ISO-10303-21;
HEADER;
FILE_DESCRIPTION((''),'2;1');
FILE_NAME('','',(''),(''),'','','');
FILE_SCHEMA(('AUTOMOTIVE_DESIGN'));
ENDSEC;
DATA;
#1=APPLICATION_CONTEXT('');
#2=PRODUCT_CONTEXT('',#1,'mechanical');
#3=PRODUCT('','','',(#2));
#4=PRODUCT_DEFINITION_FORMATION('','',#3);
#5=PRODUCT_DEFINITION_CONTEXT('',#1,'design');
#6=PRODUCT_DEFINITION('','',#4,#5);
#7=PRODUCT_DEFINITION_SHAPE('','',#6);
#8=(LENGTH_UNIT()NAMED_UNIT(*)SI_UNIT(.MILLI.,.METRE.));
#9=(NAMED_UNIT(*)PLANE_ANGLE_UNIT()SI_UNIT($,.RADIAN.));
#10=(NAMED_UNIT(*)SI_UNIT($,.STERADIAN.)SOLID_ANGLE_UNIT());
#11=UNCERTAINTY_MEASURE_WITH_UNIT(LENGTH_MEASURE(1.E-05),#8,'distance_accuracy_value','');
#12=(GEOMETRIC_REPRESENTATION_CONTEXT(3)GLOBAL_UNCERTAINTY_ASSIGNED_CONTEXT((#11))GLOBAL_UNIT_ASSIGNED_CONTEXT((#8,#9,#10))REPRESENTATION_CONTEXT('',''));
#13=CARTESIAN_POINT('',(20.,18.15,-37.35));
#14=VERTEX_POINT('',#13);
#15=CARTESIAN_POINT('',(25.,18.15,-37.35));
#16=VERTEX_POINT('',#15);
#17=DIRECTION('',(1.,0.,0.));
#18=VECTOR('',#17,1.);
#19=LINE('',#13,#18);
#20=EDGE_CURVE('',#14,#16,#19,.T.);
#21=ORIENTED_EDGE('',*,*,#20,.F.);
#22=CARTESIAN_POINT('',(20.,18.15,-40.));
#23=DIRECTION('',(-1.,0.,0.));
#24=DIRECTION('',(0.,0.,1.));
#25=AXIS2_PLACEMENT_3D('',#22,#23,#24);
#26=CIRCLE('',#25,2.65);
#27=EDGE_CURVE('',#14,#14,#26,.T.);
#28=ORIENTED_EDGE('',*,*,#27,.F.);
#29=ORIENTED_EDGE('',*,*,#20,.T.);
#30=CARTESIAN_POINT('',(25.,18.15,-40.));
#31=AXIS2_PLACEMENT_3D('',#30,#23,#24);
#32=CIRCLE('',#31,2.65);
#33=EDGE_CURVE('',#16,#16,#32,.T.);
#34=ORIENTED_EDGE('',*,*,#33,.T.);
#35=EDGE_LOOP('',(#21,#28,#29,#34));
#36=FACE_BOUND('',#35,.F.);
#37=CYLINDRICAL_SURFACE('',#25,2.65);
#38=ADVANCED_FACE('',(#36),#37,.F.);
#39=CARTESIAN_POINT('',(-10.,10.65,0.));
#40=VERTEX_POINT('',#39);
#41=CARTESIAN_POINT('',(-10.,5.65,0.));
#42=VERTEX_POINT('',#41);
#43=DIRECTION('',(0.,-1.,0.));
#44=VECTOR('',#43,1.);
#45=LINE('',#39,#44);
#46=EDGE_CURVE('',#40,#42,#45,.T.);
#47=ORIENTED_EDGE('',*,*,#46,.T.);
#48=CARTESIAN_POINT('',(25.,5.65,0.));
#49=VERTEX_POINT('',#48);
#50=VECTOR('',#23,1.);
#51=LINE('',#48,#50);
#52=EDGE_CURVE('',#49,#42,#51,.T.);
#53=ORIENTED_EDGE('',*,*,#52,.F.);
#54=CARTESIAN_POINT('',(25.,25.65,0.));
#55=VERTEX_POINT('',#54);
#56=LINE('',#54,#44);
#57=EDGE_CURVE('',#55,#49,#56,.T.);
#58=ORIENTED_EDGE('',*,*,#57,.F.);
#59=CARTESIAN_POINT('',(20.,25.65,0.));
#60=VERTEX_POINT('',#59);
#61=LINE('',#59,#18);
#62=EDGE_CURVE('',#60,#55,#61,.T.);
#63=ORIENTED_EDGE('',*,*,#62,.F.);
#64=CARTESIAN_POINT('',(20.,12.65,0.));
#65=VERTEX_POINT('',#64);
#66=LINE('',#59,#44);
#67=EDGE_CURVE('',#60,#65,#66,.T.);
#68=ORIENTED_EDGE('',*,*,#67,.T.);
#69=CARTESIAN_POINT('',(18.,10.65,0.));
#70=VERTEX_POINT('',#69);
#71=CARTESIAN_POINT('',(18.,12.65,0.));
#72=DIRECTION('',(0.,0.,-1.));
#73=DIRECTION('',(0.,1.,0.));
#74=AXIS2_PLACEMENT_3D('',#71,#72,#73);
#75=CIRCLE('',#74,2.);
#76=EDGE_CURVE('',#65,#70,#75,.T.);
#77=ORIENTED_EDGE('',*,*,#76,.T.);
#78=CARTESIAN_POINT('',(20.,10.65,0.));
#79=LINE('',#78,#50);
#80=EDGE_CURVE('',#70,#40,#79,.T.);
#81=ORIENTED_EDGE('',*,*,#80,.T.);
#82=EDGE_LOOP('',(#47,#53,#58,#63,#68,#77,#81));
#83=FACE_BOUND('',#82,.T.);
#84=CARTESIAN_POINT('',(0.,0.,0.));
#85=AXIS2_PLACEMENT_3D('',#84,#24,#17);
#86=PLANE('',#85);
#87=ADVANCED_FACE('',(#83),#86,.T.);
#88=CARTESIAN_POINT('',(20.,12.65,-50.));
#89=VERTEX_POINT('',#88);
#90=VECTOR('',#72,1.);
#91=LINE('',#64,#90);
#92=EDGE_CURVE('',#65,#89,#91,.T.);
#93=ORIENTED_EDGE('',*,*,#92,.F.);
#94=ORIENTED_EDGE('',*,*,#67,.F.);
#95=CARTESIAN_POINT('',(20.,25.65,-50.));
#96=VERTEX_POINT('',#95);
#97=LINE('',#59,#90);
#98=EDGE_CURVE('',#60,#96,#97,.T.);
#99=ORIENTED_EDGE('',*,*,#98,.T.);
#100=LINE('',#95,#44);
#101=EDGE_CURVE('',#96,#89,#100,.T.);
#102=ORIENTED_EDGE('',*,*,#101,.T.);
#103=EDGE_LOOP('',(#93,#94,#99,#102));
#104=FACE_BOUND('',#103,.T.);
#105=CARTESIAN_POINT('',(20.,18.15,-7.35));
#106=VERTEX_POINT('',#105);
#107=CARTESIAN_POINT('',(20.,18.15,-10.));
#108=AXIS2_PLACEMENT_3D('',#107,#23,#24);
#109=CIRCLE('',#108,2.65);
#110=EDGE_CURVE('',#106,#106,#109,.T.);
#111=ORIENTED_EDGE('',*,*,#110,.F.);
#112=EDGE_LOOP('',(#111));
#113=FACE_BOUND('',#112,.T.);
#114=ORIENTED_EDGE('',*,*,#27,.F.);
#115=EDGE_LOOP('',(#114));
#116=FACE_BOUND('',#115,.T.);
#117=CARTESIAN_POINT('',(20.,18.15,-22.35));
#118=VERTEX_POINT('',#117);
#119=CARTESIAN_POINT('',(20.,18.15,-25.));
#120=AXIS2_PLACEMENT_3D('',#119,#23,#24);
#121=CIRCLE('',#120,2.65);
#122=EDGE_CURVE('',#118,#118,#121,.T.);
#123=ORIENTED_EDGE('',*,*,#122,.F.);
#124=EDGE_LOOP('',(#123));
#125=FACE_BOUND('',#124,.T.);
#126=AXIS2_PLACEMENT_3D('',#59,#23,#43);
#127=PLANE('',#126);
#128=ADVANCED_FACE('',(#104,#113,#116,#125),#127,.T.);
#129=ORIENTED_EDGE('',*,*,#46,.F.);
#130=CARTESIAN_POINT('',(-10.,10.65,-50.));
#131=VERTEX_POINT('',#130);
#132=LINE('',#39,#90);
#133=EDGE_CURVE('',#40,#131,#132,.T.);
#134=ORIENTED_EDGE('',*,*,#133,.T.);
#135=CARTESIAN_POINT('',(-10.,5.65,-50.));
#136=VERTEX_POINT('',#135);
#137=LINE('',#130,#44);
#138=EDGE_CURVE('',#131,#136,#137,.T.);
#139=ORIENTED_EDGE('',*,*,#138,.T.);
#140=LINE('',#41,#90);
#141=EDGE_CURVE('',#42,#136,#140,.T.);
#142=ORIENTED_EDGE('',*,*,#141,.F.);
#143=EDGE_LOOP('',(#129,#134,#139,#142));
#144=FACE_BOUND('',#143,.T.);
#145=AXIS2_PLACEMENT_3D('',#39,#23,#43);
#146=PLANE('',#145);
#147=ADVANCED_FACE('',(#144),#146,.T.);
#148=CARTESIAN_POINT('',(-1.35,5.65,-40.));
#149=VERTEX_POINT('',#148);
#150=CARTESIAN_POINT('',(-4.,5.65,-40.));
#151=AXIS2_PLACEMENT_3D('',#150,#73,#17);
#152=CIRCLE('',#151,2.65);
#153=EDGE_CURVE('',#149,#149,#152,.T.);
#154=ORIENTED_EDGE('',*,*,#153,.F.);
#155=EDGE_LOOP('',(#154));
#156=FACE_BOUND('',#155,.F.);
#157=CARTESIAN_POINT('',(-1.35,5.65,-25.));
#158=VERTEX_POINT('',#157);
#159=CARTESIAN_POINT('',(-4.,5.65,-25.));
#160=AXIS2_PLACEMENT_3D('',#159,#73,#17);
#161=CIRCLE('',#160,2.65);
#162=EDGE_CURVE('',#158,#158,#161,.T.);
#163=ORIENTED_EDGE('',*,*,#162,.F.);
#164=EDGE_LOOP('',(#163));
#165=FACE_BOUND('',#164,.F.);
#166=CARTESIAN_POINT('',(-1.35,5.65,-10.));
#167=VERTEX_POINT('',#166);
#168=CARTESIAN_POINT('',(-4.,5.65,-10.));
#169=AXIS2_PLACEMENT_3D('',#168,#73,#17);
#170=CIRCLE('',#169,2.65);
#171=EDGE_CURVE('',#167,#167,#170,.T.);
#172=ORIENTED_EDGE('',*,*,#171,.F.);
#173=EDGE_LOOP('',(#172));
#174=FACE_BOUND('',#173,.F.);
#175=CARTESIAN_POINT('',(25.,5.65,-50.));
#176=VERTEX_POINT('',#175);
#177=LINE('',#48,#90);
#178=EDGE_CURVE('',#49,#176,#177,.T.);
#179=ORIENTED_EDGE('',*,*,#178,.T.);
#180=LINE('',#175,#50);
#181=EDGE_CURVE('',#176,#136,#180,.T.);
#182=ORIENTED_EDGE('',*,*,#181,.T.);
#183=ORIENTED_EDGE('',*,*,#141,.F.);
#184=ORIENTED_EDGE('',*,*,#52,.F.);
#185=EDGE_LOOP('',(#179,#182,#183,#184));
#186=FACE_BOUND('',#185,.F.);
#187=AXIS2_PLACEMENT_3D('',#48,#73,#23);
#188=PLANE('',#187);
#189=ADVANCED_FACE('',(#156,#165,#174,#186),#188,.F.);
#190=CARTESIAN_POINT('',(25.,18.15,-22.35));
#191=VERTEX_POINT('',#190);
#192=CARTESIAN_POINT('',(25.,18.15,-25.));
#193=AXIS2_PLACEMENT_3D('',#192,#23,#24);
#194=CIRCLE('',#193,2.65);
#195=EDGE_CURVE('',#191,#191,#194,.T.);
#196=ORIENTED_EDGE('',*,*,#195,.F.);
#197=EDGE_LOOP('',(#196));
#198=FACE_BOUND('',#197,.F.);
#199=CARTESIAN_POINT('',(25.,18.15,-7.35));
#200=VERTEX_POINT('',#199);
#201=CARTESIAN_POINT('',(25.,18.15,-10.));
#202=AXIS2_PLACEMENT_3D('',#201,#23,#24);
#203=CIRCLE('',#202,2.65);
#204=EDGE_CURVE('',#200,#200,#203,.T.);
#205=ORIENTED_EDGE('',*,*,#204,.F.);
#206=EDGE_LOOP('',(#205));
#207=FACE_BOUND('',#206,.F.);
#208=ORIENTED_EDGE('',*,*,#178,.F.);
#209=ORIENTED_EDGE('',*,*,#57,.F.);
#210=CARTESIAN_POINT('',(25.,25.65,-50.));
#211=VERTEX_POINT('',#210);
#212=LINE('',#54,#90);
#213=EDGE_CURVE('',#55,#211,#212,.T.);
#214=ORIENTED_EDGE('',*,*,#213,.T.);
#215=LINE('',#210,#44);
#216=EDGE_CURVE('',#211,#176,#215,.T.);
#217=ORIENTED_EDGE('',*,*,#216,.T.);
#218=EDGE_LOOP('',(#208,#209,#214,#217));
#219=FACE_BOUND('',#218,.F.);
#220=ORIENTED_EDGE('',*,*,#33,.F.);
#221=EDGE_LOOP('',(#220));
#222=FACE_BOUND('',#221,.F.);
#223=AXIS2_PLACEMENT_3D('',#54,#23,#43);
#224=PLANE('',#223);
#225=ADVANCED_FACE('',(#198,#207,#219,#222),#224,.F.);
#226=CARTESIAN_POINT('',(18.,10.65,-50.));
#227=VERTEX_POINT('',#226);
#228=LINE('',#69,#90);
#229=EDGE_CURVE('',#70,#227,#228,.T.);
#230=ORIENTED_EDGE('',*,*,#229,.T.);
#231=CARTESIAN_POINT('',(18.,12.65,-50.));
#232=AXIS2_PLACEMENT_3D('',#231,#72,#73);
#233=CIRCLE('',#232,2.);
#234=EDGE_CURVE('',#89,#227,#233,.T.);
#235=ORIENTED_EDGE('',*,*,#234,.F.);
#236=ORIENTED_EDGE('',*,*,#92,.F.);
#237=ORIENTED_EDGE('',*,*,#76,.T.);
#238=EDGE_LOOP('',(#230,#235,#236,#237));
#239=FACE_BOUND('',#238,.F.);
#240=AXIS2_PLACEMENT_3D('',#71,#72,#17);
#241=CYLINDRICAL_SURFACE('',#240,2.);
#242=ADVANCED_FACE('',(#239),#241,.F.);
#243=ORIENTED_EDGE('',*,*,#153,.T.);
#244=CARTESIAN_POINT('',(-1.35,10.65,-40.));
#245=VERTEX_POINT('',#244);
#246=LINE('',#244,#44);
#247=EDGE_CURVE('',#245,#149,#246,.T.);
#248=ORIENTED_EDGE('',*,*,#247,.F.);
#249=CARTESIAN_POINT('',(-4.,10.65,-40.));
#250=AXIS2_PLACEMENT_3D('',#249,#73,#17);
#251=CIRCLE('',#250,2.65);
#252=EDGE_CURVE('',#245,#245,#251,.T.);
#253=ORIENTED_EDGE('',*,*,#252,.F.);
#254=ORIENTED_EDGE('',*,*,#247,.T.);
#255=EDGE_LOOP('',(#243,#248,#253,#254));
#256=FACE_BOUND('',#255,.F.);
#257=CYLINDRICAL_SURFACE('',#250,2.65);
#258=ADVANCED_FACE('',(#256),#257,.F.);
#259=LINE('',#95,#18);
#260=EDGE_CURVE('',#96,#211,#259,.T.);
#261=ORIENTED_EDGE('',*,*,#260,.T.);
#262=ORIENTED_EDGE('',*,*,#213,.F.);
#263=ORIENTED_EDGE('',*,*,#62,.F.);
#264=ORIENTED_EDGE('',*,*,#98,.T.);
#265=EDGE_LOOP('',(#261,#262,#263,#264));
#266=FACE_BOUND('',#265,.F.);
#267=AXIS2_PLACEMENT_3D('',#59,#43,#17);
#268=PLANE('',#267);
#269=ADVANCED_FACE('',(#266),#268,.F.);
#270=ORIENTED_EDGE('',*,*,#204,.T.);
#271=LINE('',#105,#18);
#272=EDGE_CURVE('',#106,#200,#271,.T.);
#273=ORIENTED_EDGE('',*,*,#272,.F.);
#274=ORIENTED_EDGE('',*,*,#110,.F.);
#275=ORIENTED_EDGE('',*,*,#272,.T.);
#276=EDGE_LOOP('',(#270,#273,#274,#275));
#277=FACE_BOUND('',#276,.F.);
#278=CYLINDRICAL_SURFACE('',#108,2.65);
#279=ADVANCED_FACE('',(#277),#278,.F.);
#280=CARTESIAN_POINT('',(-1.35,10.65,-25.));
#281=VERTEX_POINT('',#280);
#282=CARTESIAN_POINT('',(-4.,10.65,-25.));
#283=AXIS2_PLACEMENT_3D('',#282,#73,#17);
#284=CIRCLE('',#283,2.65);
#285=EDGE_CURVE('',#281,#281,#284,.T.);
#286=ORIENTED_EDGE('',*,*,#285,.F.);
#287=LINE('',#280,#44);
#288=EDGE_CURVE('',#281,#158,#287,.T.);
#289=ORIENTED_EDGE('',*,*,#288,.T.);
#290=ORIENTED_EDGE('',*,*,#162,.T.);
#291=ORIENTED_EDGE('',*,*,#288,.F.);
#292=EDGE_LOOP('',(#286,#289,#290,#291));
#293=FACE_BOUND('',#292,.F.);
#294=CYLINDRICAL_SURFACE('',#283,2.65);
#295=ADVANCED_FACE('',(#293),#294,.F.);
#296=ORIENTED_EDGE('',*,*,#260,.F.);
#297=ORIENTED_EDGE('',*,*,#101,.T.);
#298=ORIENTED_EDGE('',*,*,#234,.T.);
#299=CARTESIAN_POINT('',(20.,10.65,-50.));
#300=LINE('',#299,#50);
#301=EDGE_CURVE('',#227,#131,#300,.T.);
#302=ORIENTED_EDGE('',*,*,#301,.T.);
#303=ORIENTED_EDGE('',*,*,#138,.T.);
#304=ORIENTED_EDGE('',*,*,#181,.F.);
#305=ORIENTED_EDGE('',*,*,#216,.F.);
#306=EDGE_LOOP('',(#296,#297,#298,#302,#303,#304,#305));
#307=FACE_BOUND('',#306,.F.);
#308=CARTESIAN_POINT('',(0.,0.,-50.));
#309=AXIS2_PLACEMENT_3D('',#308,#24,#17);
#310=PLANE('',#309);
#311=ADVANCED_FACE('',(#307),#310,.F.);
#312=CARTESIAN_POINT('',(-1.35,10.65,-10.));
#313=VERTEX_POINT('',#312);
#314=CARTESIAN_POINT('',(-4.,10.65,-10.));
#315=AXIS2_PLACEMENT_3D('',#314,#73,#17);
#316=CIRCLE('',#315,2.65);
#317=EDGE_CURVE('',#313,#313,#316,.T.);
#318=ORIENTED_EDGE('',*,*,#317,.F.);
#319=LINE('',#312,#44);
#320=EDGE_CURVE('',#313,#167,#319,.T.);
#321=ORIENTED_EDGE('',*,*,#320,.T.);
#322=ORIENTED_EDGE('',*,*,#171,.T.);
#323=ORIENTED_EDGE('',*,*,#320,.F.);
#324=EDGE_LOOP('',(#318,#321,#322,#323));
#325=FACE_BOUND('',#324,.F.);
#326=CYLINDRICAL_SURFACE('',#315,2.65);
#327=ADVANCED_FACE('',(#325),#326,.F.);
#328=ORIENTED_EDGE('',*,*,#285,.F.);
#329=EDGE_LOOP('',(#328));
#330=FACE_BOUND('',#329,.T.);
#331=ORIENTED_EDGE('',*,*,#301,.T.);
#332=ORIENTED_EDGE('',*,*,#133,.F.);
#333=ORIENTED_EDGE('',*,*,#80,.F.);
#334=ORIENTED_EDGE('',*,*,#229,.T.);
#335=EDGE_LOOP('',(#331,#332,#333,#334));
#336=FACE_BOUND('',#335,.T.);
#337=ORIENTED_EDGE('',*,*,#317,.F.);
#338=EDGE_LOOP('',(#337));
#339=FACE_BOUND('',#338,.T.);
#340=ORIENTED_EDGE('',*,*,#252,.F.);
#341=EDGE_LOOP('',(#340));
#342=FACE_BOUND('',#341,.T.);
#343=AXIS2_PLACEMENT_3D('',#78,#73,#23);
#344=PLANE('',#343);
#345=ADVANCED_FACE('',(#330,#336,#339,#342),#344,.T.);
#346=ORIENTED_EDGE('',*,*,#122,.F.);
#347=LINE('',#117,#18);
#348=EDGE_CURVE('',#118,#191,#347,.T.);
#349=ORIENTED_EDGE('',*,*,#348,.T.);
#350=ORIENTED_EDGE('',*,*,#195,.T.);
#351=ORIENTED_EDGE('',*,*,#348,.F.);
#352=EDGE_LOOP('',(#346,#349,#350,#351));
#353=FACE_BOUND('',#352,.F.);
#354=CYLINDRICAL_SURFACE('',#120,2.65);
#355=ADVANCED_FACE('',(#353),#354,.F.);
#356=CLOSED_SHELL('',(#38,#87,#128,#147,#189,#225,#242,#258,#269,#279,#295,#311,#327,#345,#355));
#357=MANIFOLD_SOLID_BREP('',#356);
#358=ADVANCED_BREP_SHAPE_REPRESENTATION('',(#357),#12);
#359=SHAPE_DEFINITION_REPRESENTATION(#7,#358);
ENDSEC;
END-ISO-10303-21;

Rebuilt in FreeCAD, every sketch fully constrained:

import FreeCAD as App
import Part
import Sketcher

V = App.Vector
Q = App.Units.Quantity


def edges_at(feature, points):
    """Names of the edges that pass closest to the given points."""
    edges = feature.Shape.Edges
    near = lambda p: min(range(len(edges)), key=lambda i: edges[i].distToShape(Part.Vertex(*p))[0])
    return sorted({f"Edge{near(p) + 1}" for p in points})

doc = App.newDocument("Part")
params = doc.addObject("Spreadsheet::Sheet", "Params")
for row, (alias, value) in enumerate([
    ("sketch1_width", "5 mm"),
    ("sketch1_width2", "35 mm"),
    ("sketch1_height", "20 mm"),
    ("pad1_length", "50 mm"),
    ("sketch2_diameter", "5.3 mm"),
    ("sketch3_diameter", "5.3 mm"),
    ("fillet_radius", "2 mm"),
], start=1):
    params.set(f"A{row}", alias)
    params.set(f"B{row}", "=" + value)
    params.setAlias(f"B{row}", alias)

body = doc.addObject("PartDesign::Body", "Body")

# Sketch on XY plane
sketch1 = doc.addObject("Sketcher::SketchObject", "Sketch")
body.addObject(sketch1)
sketch1.AttachmentSupport = (doc.XY_Plane, [""])
sketch1.MapMode = "FlatFace"
sketch1.addGeometry(Part.LineSegment(V(25, 5.65, 0), V(25, 25.65, 0)), False)
sketch1.addGeometry(Part.LineSegment(V(25, 25.65, 0), V(20, 25.65, 0)), False)
sketch1.addGeometry(Part.LineSegment(V(20, 25.65, 0), V(20, 10.65, 0)), False)
sketch1.addGeometry(Part.LineSegment(V(20, 10.65, 0), V(-10, 10.65, 0)), False)
sketch1.addGeometry(Part.LineSegment(V(-10, 10.65, 0), V(-10, 5.65, 0)), False)
sketch1.addGeometry(Part.LineSegment(V(-10, 5.65, 0), V(25, 5.65, 0)), False)
sketch1.addConstraint(Sketcher.Constraint("Coincident", 0, 2, 1, 1))
sketch1.addConstraint(Sketcher.Constraint("Coincident", 1, 2, 2, 1))
sketch1.addConstraint(Sketcher.Constraint("Coincident", 2, 2, 3, 1))
sketch1.addConstraint(Sketcher.Constraint("Coincident", 3, 2, 4, 1))
sketch1.addConstraint(Sketcher.Constraint("Coincident", 4, 2, 5, 1))
sketch1.addConstraint(Sketcher.Constraint("Coincident", 5, 2, 0, 1))
sketch1.addConstraint(Sketcher.Constraint("Vertical", 0))
sketch1.addConstraint(Sketcher.Constraint("Horizontal", 1))
sketch1.addConstraint(Sketcher.Constraint("Vertical", 2))
sketch1.addConstraint(Sketcher.Constraint("Horizontal", 3))
sketch1.addConstraint(Sketcher.Constraint("Vertical", 4))
sketch1.addConstraint(Sketcher.Constraint("Horizontal", 5))
sketch1.addConstraint(Sketcher.Constraint("Equal", 1, 4))
sketch1.addConstraint(Sketcher.Constraint("DistanceX", 1, 2, 1, 1, Q("5 mm")))
sketch1.addConstraint(Sketcher.Constraint("DistanceX", 5, 1, 5, 2, Q("35 mm")))
sketch1.addConstraint(Sketcher.Constraint("DistanceY", 0, 1, 0, 2, Q("20 mm")))
sketch1.addConstraint(Sketcher.Constraint("DistanceX", -1, 1, 1, 2, Q("20 mm")))
sketch1.addConstraint(Sketcher.Constraint("DistanceY", -1, 1, 0, 2, Q("25.65 mm")))
sketch1.setExpression("Constraints[13]", "Params.sketch1_width")
sketch1.setExpression("Constraints[14]", "Params.sketch1_width2")
sketch1.setExpression("Constraints[15]", "Params.sketch1_height")
pad1 = doc.addObject("PartDesign::Pad", "Pad")
body.addObject(pad1)
pad1.Profile = sketch1
pad1.setExpression("Length", "Params.pad1_length")
pad1.Reversed = True

# Sketch on YZ plane
sketch2 = doc.addObject("Sketcher::SketchObject", "Sketch001")
body.addObject(sketch2)
sketch2.AttachmentSupport = (doc.YZ_Plane, [""])
sketch2.MapMode = "FlatFace"
sketch2.AttachmentOffset = App.Placement(V(0, 0, 20), App.Rotation())
sketch2.addGeometry(Part.Circle(V(18.15, -40, 0), V(0, 0, 1), 2.65), False)
sketch2.addGeometry(Part.Circle(V(18.15, -10, 0), V(0, 0, 1), 2.65), False)
sketch2.addGeometry(Part.Circle(V(18.15, -25, 0), V(0, 0, 1), 2.65), False)
sketch2.addConstraint(Sketcher.Constraint("Equal", 0, 1))
sketch2.addConstraint(Sketcher.Constraint("Equal", 1, 2))
sketch2.addConstraint(Sketcher.Constraint("Vertical", 0, 3, 1, 3))
sketch2.addConstraint(Sketcher.Constraint("Vertical", 1, 3, 2, 3))
sketch2.addConstraint(Sketcher.Constraint("Diameter", 0, Q("5.3 mm")))
sketch2.addConstraint(Sketcher.Constraint("DistanceY", 1, 3, -1, 1, Q("10 mm")))
sketch2.addConstraint(Sketcher.Constraint("DistanceY", 0, 3, -1, 1, Q("40 mm")))
sketch2.addConstraint(Sketcher.Constraint("DistanceY", 2, 3, -1, 1, Q("25 mm")))
sketch2.addConstraint(Sketcher.Constraint("DistanceX", -1, 1, 0, 3, Q("18.15 mm")))
sketch2.setExpression("Constraints[4]", "Params.sketch2_diameter")
pocket1 = doc.addObject("PartDesign::Pocket", "Pocket")
body.addObject(pocket1)
pocket1.Profile = sketch2
pocket1.Type = "ThroughAll"
pocket1.Reversed = True

# Sketch on XZ plane
sketch3 = doc.addObject("Sketcher::SketchObject", "Sketch002")
body.addObject(sketch3)
sketch3.AttachmentSupport = (doc.XZ_Plane, [""])
sketch3.MapMode = "FlatFace"
sketch3.AttachmentOffset = App.Placement(V(0, 0, -10.65), App.Rotation())
sketch3.addGeometry(Part.Circle(V(-4, -10, 0), V(0, 0, 1), 2.65), False)
sketch3.addGeometry(Part.Circle(V(-4, -40, 0), V(0, 0, 1), 2.65), False)
sketch3.addGeometry(Part.Circle(V(-4, -25, 0), V(0, 0, 1), 2.65), False)
sketch3.addConstraint(Sketcher.Constraint("Equal", 0, 1))
sketch3.addConstraint(Sketcher.Constraint("Equal", 1, 2))
sketch3.addConstraint(Sketcher.Constraint("Vertical", 0, 3, 1, 3))
sketch3.addConstraint(Sketcher.Constraint("Vertical", 1, 3, 2, 3))
sketch3.addConstraint(Sketcher.Constraint("Diameter", 0, Q("5.3 mm")))
sketch3.addConstraint(Sketcher.Constraint("DistanceY", 0, 3, -1, 1, Q("10 mm")))
sketch3.addConstraint(Sketcher.Constraint("DistanceX", 0, 3, -1, 1, Q("4 mm")))
sketch3.addConstraint(Sketcher.Constraint("DistanceY", 1, 3, -1, 1, Q("40 mm")))
sketch3.addConstraint(Sketcher.Constraint("DistanceY", 2, 3, -1, 1, Q("25 mm")))
sketch3.setExpression("Constraints[4]", "Params.sketch3_diameter")
pocket2 = doc.addObject("PartDesign::Pocket", "Pocket001")
body.addObject(pocket2)
pocket2.Profile = sketch3
pocket2.Type = "ThroughAll"
pocket2.Reversed = True
doc.recompute()

fillet = doc.addObject("PartDesign::Fillet", "Fillet")
body.addObject(fillet)
fillet.Base = (pocket2, edges_at(pocket2, [(20, 10.65, -25)]))
fillet.setExpression("Radius", "Params.fillet_radius")

doc.recompute()
